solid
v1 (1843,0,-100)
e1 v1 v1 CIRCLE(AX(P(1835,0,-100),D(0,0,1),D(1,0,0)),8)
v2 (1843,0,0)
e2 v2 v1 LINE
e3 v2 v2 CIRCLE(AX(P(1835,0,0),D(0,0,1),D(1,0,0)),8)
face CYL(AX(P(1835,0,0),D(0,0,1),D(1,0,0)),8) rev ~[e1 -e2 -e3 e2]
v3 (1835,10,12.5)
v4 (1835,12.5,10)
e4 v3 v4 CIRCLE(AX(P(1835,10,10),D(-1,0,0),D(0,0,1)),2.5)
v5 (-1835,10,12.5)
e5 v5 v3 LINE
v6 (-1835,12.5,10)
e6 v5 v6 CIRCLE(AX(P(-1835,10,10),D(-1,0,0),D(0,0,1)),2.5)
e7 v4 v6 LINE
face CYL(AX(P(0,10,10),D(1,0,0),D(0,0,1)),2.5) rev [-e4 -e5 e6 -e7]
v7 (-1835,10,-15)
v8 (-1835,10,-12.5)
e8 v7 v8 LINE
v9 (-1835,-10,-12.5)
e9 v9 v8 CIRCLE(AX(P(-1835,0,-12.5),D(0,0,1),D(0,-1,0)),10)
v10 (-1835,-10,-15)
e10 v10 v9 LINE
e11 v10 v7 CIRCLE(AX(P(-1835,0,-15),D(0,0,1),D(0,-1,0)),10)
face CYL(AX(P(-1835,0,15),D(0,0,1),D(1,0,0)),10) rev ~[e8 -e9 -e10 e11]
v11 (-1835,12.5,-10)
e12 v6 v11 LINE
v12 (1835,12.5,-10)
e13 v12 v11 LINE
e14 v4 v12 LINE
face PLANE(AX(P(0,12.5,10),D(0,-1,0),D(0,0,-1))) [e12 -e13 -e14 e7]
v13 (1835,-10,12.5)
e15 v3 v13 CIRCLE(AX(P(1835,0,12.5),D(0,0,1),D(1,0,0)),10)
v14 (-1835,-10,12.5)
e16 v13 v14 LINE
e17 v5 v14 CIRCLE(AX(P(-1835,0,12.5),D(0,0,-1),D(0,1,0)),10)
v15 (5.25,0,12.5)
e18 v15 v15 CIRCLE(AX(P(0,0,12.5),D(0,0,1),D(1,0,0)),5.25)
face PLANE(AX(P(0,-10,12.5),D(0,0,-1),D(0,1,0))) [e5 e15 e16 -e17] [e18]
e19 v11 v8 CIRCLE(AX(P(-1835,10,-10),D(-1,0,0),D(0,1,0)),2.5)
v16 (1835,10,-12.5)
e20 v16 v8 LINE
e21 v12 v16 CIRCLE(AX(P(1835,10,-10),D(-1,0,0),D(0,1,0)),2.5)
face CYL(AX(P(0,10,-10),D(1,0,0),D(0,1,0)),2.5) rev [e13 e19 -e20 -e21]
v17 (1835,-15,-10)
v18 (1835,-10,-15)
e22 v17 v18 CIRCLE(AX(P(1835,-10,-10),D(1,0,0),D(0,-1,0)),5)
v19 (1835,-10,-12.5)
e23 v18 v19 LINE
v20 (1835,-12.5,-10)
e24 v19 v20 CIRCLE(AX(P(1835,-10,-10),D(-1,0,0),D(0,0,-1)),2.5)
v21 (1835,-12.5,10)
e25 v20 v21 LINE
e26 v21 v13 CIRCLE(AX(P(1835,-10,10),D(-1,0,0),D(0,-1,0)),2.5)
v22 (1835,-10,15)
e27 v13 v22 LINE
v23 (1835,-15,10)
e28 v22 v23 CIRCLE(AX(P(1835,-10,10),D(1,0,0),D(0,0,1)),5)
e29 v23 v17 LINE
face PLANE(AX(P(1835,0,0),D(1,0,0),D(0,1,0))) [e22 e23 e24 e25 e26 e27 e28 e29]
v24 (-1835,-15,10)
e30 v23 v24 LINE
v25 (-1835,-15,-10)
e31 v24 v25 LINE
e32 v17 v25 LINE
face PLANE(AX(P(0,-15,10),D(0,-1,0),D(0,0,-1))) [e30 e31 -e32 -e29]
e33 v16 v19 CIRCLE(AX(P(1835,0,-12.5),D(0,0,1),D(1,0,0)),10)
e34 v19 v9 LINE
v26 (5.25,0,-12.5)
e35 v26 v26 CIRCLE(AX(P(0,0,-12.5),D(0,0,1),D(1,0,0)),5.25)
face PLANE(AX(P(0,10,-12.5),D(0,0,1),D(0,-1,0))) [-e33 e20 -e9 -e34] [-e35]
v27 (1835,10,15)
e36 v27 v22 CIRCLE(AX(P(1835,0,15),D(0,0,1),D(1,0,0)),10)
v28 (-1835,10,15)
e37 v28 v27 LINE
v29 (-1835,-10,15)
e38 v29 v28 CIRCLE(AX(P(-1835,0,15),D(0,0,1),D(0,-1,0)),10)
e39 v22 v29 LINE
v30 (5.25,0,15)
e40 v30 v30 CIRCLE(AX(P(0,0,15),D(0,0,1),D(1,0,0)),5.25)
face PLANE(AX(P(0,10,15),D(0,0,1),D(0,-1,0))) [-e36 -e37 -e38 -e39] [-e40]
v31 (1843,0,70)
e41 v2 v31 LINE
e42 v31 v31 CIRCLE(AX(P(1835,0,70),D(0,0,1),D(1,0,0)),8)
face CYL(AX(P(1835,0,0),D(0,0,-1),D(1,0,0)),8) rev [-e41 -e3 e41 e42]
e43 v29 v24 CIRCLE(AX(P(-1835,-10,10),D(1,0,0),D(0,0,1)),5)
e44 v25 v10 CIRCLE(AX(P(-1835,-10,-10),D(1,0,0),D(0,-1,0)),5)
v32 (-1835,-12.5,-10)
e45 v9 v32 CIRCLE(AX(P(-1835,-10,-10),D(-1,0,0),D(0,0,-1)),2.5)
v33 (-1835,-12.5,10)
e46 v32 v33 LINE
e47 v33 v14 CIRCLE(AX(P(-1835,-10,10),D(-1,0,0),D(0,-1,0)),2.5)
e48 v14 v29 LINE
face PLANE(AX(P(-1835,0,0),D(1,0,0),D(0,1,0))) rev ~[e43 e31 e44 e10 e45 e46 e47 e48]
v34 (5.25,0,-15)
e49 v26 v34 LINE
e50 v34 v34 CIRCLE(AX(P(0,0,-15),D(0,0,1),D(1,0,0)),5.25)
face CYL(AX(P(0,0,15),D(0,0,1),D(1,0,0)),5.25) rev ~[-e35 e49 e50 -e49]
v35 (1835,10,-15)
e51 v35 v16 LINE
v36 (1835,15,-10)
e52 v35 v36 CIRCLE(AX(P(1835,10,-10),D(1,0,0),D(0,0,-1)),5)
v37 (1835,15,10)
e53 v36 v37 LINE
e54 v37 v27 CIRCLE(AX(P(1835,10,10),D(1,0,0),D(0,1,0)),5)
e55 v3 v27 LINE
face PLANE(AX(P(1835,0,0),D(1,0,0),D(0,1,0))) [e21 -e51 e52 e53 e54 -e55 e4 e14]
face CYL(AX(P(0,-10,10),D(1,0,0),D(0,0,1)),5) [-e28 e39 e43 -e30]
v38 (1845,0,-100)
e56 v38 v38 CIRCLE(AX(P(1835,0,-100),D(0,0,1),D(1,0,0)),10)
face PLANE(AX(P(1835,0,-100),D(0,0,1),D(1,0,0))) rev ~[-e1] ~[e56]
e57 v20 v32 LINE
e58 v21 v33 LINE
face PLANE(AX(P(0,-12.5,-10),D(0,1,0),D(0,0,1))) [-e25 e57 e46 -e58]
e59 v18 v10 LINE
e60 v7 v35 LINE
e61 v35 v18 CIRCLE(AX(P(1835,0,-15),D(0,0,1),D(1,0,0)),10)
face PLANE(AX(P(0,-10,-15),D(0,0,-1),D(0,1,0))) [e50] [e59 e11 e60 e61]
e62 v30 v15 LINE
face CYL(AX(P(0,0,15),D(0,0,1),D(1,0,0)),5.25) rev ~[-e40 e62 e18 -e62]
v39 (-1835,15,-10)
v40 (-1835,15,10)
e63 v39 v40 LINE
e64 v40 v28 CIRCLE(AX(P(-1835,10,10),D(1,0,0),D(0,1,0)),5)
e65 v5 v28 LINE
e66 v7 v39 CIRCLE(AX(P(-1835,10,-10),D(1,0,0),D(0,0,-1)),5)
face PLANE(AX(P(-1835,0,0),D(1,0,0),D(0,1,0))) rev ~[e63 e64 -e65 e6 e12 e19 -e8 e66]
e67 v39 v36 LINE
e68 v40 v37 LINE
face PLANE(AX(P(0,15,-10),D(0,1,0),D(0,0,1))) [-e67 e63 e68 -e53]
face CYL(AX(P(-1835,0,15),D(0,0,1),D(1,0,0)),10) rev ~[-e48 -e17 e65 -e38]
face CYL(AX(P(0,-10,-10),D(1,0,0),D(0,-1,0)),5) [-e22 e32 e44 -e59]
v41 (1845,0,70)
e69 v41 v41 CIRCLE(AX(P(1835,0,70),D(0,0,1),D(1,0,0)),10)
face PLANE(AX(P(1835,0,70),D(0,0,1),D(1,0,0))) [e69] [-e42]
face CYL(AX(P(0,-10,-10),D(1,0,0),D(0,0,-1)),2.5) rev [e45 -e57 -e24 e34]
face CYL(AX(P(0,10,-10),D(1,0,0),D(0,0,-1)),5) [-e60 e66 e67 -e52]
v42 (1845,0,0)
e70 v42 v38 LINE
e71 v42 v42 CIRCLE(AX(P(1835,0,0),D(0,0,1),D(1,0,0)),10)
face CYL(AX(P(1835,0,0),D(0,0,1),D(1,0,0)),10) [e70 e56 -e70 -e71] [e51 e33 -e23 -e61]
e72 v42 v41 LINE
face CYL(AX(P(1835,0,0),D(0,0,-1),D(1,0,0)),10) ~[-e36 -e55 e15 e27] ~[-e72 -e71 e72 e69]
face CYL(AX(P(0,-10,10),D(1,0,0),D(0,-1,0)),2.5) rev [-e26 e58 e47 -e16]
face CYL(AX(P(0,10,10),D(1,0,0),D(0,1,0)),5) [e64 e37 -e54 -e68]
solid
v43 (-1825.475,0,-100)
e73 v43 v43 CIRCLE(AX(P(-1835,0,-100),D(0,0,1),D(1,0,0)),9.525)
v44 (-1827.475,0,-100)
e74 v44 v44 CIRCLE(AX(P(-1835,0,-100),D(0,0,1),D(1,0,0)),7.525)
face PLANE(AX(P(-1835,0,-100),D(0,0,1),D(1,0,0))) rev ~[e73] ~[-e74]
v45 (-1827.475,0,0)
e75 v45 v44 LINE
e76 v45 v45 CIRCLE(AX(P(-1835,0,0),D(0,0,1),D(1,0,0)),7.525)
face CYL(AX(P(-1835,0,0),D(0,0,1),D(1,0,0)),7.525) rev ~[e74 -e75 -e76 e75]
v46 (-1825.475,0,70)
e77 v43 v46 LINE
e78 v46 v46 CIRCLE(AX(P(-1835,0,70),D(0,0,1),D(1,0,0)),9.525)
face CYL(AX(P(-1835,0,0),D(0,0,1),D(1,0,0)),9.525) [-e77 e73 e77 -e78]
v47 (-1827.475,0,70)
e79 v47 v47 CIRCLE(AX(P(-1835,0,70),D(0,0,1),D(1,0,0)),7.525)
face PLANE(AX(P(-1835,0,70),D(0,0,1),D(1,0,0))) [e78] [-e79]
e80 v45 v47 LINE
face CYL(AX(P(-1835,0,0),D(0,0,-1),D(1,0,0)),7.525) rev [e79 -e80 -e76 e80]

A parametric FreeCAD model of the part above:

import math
import FreeCAD as App
import Part
import Sketcher
from FreeCAD import Vector
Q = App.Units.Quantity

doc = App.newDocument("Part")
params = doc.addObject("Spreadsheet::Sheet", "Params")
for row, (alias, value) in enumerate([
    ("sketch1_radius", "5 mm"),
    ("sketch1_radius2", "2.5 mm"),
    ("sketch1_width", "20 mm"),
    ("pad1_length", "3670 mm"),
    ("sketch2_diameter", "20 mm"),
    ("sketch3_diameter", "20 mm"),
    ("sketch3_diameter2", "16 mm"),
    ("pad2_length", "70 mm"),
    ("pad2_length2", "100 mm"),
    ("sketch4_diameter", "10.5 mm"),
    ("sketch5_diameter", "19.05 mm"),
    ("sketch5_diameter2", "15.05 mm"),
    ("pad3_length", "70 mm"),
    ("pad3_length2", "100 mm"),
], start=1):
    params.set(f"A{row}", alias)
    params.set(f"B{row}", "=" + value)
    params.setAlias(f"B{row}", alias)

body = doc.addObject("PartDesign::Body", "Body")

# Sketch on YZ plane
sketch1 = body.newObject("Sketcher::SketchObject", "Sketch")
sketch1.AttachmentSupport = (doc.getObject("YZ_Plane"), [""])
sketch1.MapMode = "FlatFace"
sketch1.addGeometry([
    Part.LineSegment(Vector(-10, -15, 0), Vector(10, -15, 0)),  # 0
    Part.ArcOfCircle(Part.Circle(Vector(10, -10, 0), Vector(0, 0, 1), 5), math.radians(-90), math.radians(0)),  # 1
    Part.LineSegment(Vector(15, -10, 0), Vector(15, 10, 0)),  # 2
    Part.ArcOfCircle(Part.Circle(Vector(10, 10, 0), Vector(0, 0, 1), 5), math.radians(0), math.radians(90)),  # 3
    Part.LineSegment(Vector(10, 15, 0), Vector(-10, 15, 0)),  # 4
    Part.ArcOfCircle(Part.Circle(Vector(-10, 10, 0), Vector(0, 0, 1), 5), math.radians(90), math.radians(180)),  # 5
    Part.LineSegment(Vector(-15, 10, 0), Vector(-15, -10, 0)),  # 6
    Part.ArcOfCircle(Part.Circle(Vector(-10, -10, 0), Vector(0, 0, 1), 5), math.radians(180), math.radians(270)),  # 7
    Part.LineSegment(Vector(-10, 12.5, 0), Vector(10, 12.5, 0)),  # 8
    Part.ArcOfCircle(Part.Circle(Vector(10, 10, 0), Vector(0, 0, 1), 2.5), math.radians(0), math.radians(90)),  # 9
    Part.LineSegment(Vector(12.5, 10, 0), Vector(12.5, -10, 0)),  # 10
    Part.ArcOfCircle(Part.Circle(Vector(10, -10, 0), Vector(0, 0, 1), 2.5), math.radians(-90), math.radians(0)),  # 11
    Part.LineSegment(Vector(10, -12.5, 0), Vector(-10, -12.5, 0)),  # 12
    Part.ArcOfCircle(Part.Circle(Vector(-10, -10, 0), Vector(0, 0, 1), 2.5), math.radians(180), math.radians(270)),  # 13
    Part.LineSegment(Vector(-12.5, -10, 0), Vector(-12.5, 10, 0)),  # 14
    Part.ArcOfCircle(Part.Circle(Vector(-10, 10, 0), Vector(0, 0, 1), 2.5), math.radians(90), math.radians(180)),  # 15
], False)
sketch1.addConstraint([
    Sketcher.Constraint("Tangent", 0, 2, 1, 1),
    Sketcher.Constraint("Tangent", 1, 2, 2, 1),
    Sketcher.Constraint("Tangent", 2, 2, 3, 1),
    Sketcher.Constraint("Tangent", 3, 2, 4, 1),
    Sketcher.Constraint("Tangent", 4, 2, 5, 1),
    Sketcher.Constraint("Tangent", 5, 2, 6, 1),
    Sketcher.Constraint("Tangent", 6, 2, 7, 1),
    Sketcher.Constraint("Tangent", 7, 2, 0, 1),
    Sketcher.Constraint("Tangent", 8, 2, 9, 2),
    Sketcher.Constraint("Tangent", 9, 1, 10, 1),
    Sketcher.Constraint("Tangent", 10, 2, 11, 2),
    Sketcher.Constraint("Tangent", 11, 1, 12, 1),
    Sketcher.Constraint("Tangent", 12, 2, 13, 2),
    Sketcher.Constraint("Tangent", 13, 1, 14, 1),
    Sketcher.Constraint("Tangent", 14, 2, 15, 2),
    Sketcher.Constraint("Tangent", 15, 1, 8, 1),
    Sketcher.Constraint("Horizontal", 0),
    Sketcher.Constraint("Vertical", 2),
    Sketcher.Constraint("Horizontal", 4),
    Sketcher.Constraint("Vertical", 6),
    Sketcher.Constraint("Horizontal", 8),
    Sketcher.Constraint("Vertical", 10),
    Sketcher.Constraint("Horizontal", 12),
    Sketcher.Constraint("Vertical", 14),
    Sketcher.Constraint("Coincident", 9, 3, 3, 3),
    Sketcher.Constraint("Coincident", 11, 3, 1, 3),
    Sketcher.Constraint("Coincident", 13, 3, 7, 3),
    Sketcher.Constraint("Equal", 1, 3),
    Sketcher.Constraint("Equal", 3, 5),
    Sketcher.Constraint("Equal", 5, 7),
    Sketcher.Constraint("Equal", 13, 15),
    Sketcher.Constraint("Symmetric", 1, 3, 5, 3, -1, 1),
    Sketcher.Constraint("Equal", 12, 2),
    Sketcher.Constraint("Radius", 1, Q("5 mm")),
    Sketcher.Constraint("Radius", 9, Q("2.5 mm")),
    Sketcher.Constraint("DistanceX", 0, 1, 0, 2, Q("20 mm")),
])
sketch1.setExpression("Constraints[33]", "Params.sketch1_radius")
sketch1.setExpression("Constraints[34]", "Params.sketch1_radius2")
sketch1.setExpression("Constraints[35]", "Params.sketch1_width")
pad1 = body.newObject("PartDesign::Pad", "Pad")
pad1.Profile = sketch1
pad1.setExpression("Length", "Params.pad1_length")
pad1.Midplane = True

# Sketch on XY plane
sketch2 = body.newObject("Sketcher::SketchObject", "Sketch001")
sketch2.AttachmentSupport = (doc.getObject("XY_Plane"), [""])
sketch2.MapMode = "FlatFace"
sketch2.AttachmentOffset = App.Placement(Vector(0, 0, 15), App.Rotation())
sketch2.addGeometry([
    Part.Circle(Vector(-1835, 0, 0), Vector(0, 0, 1), 10),
    Part.Circle(Vector(1835, 0, 0), Vector(0, 0, 1), 10),
], False)
sketch2.addConstraint([
    Sketcher.Constraint("Equal", 0, 1),
    Sketcher.Constraint("Symmetric", 0, 3, 1, 3, -1, 1),
    Sketcher.Constraint("PointOnObject", 0, 3, -1),
    Sketcher.Constraint("Diameter", 0, Q("20 mm")),
    Sketcher.Constraint("DistanceX", 0, 3, -1, 1, Q("1835 mm")),
])
sketch2.setExpression("Constraints[3]", "Params.sketch2_diameter")
pocket1 = body.newObject("PartDesign::Pocket", "Pocket")
pocket1.Profile = sketch2
pocket1.Type = "ThroughAll"

# Sketch on XY plane
sketch3 = body.newObject("Sketcher::SketchObject", "Sketch002")
sketch3.AttachmentSupport = (doc.getObject("XY_Plane"), [""])
sketch3.MapMode = "FlatFace"
sketch3.addGeometry([
    Part.Circle(Vector(1835, 0, 0), Vector(0, 0, 1), 10),
    Part.Circle(Vector(1835, 0, 0), Vector(0, 0, 1), 8),
], False)
sketch3.addConstraint([
    Sketcher.Constraint("Coincident", 1, 3, 0, 3),
    Sketcher.Constraint("PointOnObject", 0, 3, -1),
    Sketcher.Constraint("Diameter", 0, Q("20 mm")),
    Sketcher.Constraint("Diameter", 1, Q("16 mm")),
    Sketcher.Constraint("DistanceX", -1, 1, 0, 3, Q("1835 mm")),
])
sketch3.setExpression("Constraints[2]", "Params.sketch3_diameter")
sketch3.setExpression("Constraints[3]", "Params.sketch3_diameter2")
pad2 = body.newObject("PartDesign::Pad", "Pad001")
pad2.Profile = sketch3
pad2.Type = "TwoLengths"
pad2.setExpression("Length", "Params.pad2_length")
pad2.setExpression("Length2", "Params.pad2_length2")

# Sketch on XY plane
sketch4 = body.newObject("Sketcher::SketchObject", "Sketch003")
sketch4.AttachmentSupport = (doc.getObject("XY_Plane"), [""])
sketch4.MapMode = "FlatFace"
sketch4.AttachmentOffset = App.Placement(Vector(0, 0, 15), App.Rotation())
sketch4.addGeometry(Part.Circle(Vector(0, 0, 0), Vector(0, 0, 1), 5), False)
sketch4.addConstraint([
    Sketcher.Constraint("Coincident", 0, 3, -1, 1),
    Sketcher.Constraint("Diameter", 0, Q("10.5 mm")),
])
sketch4.setExpression("Constraints[1]", "Params.sketch4_diameter")
pocket2 = body.newObject("PartDesign::Pocket", "Pocket001")
pocket2.Profile = sketch4
pocket2.Type = "ThroughAll"
body2 = doc.addObject("PartDesign::Body", "Body001")

# Sketch on XY plane
sketch5 = body2.newObject("Sketcher::SketchObject", "Sketch004")
sketch5.AttachmentSupport = (doc.getObject("XY_Plane001"), [""])
sketch5.MapMode = "FlatFace"
sketch5.addGeometry([
    Part.Circle(Vector(-1835, 0, 0), Vector(0, 0, 1), 10),
    Part.Circle(Vector(-1835, 0, 0), Vector(0, 0, 1), 8),
], False)
sketch5.addConstraint([
    Sketcher.Constraint("Coincident", 1, 3, 0, 3),
    Sketcher.Constraint("PointOnObject", 0, 3, -1),
    Sketcher.Constraint("Diameter", 0, Q("19.05 mm")),
    Sketcher.Constraint("Diameter", 1, Q("15.05 mm")),
    Sketcher.Constraint("DistanceX", 0, 3, -1, 1, Q("1835 mm")),
])
sketch5.setExpression("Constraints[2]", "Params.sketch5_diameter")
sketch5.setExpression("Constraints[3]", "Params.sketch5_diameter2")
pad3 = body2.newObject("PartDesign::Pad", "Pad002")
pad3.Profile = sketch5
pad3.Type = "TwoLengths"
pad3.setExpression("Length", "Params.pad3_length")
pad3.setExpression("Length2", "Params.pad3_length2")

doc.recompute()
